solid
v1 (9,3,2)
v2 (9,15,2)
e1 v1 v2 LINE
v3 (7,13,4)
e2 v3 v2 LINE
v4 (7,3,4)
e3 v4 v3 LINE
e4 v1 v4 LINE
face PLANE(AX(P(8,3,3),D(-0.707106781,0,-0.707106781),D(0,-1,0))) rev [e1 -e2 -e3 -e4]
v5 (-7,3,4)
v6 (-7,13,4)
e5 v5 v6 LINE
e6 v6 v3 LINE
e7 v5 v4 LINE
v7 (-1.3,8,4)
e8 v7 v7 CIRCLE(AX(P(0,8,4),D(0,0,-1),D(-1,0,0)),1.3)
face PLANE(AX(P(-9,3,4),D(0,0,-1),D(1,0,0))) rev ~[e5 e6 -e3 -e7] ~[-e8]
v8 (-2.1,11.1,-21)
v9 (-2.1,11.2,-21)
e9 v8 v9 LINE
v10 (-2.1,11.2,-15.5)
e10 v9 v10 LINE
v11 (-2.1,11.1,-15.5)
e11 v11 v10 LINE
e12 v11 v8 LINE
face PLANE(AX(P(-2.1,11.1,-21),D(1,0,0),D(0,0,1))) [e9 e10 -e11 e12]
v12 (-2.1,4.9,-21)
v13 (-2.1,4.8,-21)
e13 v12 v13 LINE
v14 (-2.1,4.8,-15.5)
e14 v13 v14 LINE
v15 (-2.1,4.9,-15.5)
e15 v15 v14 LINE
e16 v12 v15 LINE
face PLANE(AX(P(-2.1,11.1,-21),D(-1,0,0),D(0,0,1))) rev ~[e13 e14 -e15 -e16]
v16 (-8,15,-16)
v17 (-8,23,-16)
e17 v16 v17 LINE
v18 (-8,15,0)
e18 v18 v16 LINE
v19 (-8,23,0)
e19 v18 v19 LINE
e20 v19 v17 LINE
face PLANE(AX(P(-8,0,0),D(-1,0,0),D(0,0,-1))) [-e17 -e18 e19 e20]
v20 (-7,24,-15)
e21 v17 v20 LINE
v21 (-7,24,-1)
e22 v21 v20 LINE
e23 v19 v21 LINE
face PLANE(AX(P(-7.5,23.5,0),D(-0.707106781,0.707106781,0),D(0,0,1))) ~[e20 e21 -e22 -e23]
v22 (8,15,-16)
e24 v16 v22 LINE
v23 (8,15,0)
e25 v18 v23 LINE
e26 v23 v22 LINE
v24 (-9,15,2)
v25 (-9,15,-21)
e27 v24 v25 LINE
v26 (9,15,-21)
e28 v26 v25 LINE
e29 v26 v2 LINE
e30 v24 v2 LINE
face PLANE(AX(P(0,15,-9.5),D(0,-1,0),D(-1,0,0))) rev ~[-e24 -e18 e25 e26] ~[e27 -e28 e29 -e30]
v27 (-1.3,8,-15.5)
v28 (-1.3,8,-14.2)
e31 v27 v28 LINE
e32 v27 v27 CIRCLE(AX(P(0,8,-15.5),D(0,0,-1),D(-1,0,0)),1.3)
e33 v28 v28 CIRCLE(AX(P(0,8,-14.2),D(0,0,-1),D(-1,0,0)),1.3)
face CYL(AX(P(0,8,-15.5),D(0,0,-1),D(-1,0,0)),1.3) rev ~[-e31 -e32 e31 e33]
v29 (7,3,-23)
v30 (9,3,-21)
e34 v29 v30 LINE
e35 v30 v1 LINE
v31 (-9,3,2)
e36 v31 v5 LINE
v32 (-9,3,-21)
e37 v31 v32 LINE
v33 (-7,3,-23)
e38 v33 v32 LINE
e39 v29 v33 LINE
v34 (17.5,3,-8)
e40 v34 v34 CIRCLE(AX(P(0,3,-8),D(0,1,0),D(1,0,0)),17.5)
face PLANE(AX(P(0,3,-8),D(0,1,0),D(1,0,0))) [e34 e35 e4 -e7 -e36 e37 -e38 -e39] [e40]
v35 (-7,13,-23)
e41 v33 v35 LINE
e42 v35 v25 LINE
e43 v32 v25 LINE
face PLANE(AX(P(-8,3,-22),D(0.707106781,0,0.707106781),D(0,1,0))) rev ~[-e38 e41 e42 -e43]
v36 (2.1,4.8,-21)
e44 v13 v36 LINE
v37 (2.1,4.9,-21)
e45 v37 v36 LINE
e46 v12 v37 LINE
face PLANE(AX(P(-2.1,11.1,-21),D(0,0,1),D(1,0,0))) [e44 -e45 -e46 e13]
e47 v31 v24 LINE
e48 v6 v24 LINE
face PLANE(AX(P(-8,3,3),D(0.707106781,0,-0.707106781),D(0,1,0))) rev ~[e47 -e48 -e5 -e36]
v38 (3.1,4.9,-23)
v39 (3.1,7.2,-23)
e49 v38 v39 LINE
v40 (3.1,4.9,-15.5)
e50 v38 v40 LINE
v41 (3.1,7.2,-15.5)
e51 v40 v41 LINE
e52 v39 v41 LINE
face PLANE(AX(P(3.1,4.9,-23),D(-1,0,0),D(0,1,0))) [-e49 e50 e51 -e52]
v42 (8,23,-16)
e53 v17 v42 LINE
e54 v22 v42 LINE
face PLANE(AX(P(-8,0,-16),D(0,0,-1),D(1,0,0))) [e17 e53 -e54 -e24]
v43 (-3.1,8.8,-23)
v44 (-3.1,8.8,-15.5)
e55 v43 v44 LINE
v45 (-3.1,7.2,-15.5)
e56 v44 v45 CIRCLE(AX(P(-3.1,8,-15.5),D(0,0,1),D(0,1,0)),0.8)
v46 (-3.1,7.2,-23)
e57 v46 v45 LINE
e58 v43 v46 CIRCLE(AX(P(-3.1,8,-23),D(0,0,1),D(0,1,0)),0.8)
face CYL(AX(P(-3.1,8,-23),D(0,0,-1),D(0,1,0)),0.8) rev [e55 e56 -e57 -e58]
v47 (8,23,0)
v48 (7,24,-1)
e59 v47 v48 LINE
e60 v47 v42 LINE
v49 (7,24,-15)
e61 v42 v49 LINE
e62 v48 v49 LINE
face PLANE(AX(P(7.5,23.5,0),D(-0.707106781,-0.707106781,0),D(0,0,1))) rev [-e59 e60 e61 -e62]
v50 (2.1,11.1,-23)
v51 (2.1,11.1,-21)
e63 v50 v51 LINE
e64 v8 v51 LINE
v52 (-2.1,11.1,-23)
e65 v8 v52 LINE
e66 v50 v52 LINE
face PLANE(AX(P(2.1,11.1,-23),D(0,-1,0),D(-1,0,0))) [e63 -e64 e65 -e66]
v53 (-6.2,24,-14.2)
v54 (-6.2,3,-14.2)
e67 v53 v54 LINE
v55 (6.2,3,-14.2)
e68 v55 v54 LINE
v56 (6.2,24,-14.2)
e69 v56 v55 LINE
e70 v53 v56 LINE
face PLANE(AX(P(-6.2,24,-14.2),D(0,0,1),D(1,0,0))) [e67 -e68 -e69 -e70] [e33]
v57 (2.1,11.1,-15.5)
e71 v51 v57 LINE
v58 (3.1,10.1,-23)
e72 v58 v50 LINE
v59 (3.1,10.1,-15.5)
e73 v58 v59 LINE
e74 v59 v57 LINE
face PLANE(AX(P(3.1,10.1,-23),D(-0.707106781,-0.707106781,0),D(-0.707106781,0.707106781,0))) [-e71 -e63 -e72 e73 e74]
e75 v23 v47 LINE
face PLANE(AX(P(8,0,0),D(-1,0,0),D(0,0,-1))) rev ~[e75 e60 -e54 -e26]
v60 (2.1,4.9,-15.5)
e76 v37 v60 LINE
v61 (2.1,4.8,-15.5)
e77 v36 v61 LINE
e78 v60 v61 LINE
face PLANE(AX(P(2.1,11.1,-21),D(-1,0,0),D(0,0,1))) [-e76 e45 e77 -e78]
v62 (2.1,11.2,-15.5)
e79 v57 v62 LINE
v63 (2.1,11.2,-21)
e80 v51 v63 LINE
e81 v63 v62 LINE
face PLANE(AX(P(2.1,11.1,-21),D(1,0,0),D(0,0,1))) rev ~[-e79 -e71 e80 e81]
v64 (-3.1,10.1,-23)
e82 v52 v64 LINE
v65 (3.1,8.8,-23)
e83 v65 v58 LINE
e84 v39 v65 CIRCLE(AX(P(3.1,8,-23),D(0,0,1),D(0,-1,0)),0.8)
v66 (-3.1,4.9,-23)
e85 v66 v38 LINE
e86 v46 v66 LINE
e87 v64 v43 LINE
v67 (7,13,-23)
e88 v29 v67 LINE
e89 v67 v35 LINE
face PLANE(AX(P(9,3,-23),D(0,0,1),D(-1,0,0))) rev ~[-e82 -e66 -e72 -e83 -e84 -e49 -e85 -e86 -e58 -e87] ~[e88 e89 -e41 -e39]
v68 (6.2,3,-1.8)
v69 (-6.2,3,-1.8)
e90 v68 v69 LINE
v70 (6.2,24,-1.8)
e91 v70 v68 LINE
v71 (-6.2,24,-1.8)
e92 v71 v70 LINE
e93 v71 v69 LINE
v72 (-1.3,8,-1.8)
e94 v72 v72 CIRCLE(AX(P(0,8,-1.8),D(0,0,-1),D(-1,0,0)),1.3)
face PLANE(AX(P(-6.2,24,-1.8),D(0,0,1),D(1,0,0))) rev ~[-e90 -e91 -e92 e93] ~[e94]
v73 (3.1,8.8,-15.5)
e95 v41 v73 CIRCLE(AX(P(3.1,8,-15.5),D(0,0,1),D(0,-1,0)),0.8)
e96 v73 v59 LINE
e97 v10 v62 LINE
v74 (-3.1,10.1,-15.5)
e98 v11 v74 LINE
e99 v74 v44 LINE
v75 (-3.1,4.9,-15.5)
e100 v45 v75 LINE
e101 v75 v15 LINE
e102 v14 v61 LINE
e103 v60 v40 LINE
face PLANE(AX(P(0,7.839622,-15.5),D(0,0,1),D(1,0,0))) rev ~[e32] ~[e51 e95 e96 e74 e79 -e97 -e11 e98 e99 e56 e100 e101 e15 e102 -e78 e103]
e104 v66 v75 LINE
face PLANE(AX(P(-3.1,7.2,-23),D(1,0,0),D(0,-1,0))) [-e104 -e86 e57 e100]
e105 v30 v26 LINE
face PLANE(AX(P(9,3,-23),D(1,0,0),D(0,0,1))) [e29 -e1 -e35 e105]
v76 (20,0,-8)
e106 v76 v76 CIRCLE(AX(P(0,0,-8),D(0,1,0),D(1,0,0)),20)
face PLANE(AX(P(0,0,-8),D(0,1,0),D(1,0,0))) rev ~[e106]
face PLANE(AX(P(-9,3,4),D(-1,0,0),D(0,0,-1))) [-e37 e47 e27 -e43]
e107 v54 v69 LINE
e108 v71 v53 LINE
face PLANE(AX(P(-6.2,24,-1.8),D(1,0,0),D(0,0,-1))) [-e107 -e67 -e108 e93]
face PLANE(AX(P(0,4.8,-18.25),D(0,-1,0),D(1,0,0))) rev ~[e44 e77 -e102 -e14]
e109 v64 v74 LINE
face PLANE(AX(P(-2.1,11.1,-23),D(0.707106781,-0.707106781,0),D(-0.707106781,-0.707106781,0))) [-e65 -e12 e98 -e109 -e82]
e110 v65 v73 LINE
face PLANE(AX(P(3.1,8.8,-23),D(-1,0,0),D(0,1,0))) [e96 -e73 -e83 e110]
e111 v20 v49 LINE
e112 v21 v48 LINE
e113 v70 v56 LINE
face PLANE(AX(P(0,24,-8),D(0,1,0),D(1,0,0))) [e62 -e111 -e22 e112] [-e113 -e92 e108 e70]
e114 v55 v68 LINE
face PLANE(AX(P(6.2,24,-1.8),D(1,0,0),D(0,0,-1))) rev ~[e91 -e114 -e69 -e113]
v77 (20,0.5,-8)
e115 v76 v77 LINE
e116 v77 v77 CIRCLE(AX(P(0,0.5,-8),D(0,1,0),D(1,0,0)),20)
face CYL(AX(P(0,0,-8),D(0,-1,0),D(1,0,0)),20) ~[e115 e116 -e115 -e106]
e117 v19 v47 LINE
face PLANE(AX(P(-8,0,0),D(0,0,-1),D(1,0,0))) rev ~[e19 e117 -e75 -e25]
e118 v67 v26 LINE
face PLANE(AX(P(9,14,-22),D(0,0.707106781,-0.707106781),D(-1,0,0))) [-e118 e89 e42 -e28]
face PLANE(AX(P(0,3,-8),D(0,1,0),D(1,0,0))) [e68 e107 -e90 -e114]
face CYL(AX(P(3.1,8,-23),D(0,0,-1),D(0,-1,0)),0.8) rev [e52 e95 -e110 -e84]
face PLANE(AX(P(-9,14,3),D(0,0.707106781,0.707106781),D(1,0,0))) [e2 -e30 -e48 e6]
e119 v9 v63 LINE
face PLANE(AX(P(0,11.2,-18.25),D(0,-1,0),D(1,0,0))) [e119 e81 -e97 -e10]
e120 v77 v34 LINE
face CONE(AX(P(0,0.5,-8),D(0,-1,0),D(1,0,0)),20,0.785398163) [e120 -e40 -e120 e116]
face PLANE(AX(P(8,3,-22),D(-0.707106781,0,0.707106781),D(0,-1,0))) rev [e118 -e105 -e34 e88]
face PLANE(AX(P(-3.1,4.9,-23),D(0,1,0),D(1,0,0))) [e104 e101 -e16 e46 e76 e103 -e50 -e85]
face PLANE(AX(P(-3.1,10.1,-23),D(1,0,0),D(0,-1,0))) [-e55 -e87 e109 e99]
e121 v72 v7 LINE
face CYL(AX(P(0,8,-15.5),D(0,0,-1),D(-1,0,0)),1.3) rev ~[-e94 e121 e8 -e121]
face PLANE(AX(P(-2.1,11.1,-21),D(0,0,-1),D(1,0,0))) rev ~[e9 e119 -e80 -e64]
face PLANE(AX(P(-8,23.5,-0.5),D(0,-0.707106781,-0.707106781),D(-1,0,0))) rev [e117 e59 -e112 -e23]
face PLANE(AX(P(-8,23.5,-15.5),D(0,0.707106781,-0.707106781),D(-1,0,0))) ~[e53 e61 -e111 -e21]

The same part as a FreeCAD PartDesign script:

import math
import FreeCAD as App
import Part
import Sketcher


def edges_at(feature, points):
    """Names of the edges that pass closest to the given points."""
    edges = feature.Shape.Edges
    near = lambda p: min(range(len(edges)), key=lambda i: edges[i].distToShape(Part.Vertex(*p))[0])
    return sorted({f"Edge{near(p) + 1}" for p in points})


def add_polygon(sketch, points):
    """Adds a closed chain of lines whose ends are joined by coincident constraints."""
    first, n = sketch.GeometryCount, len(points)
    for a, b in zip(points, points[1:] + points[:1]):
        sketch.addGeometry(Part.LineSegment(App.Vector(*a, 0), App.Vector(*b, 0)), False)
    for i in range(n):
        sketch.addConstraint(Sketcher.Constraint("Coincident", first + i, 2, first + (i + 1) % n, 1))

doc = App.newDocument("Part")
body = doc.addObject("PartDesign::Body", "Body")

# Sketch on XZ plane
sketch1 = body.newObject("Sketcher::SketchObject", "Sketch")
sketch1.AttachmentSupport = (doc.getObject("XZ_Plane"), [""])
sketch1.MapMode = "FlatFace"
add_polygon(sketch1, [(-8, -16), (-8, 0), (8, 0), (8, -16)])  # lines 0-3
sketch1.addConstraint(Sketcher.Constraint("Vertical", 0))
sketch1.addConstraint(Sketcher.Constraint("Horizontal", 1))
sketch1.addConstraint(Sketcher.Constraint("Vertical", 2))
sketch1.addConstraint(Sketcher.Constraint("Horizontal", 3))
sketch1.addConstraint(Sketcher.Constraint("Symmetric", 0, 2, 1, 2, -1, 1))
sketch1.addConstraint(Sketcher.Constraint("Equal", 3, 0))
sketch1.addConstraint(Sketcher.Constraint("DistanceX", 1, 1, 1, 2, 16.0))
pad1 = body.newObject("PartDesign::Pad", "Pad")
pad1.Profile = sketch1
pad1.Length = 24
pad1.Reversed = True

# Sketch on XZ plane
sketch2 = body.newObject("Sketcher::SketchObject", "Sketch001")
sketch2.AttachmentSupport = (doc.getObject("XZ_Plane"), [""])
sketch2.MapMode = "FlatFace"
sketch2.AttachmentOffset = App.Placement(App.Vector(0, 0, -24), App.Rotation())
add_polygon(sketch2, [(-6, -14), (-6, -2), (6, -2), (6, -14)])  # lines 0-3
sketch2.addConstraint(Sketcher.Constraint("Vertical", 0))
sketch2.addConstraint(Sketcher.Constraint("Horizontal", 1))
sketch2.addConstraint(Sketcher.Constraint("Vertical", 2))
sketch2.addConstraint(Sketcher.Constraint("Horizontal", 3))
sketch2.addConstraint(Sketcher.Constraint("Equal", 3, 0))
sketch2.addConstraint(Sketcher.Constraint("DistanceX", 1, 1, 1, 2, 12.4))
sketch2.addConstraint(Sketcher.Constraint("DistanceX", 0, 2, -1, 1, 6.2))
sketch2.addConstraint(Sketcher.Constraint("DistanceY", 0, 2, -1, 1, 1.8))
pocket1 = body.newObject("PartDesign::Pocket", "Pocket")
pocket1.Profile = sketch2
pocket1.Length = 22
pocket1.Reversed = True

# Sketch on XZ plane
sketch3 = body.newObject("Sketcher::SketchObject", "Sketch002")
sketch3.AttachmentSupport = (doc.getObject("XZ_Plane"), [""])
sketch3.MapMode = "FlatFace"
sketch3.addGeometry(Part.Circle(App.Vector(0, -8, 0), App.Vector(0, 0, 1), 20), False)
sketch3.addConstraint(Sketcher.Constraint("PointOnObject", 0, 3, -2))
sketch3.addConstraint(Sketcher.Constraint("Diameter", 0, 40.0))
sketch3.addConstraint(Sketcher.Constraint("DistanceY", 0, 3, -1, 1, 8.0))
pad2 = body.newObject("PartDesign::Pad", "Pad001")
pad2.Profile = sketch3
pad2.Length = 3
pad2.Reversed = True
doc.recompute()

chamfer = body.newObject("PartDesign::Chamfer", "Chamfer")
chamfer.Base = (pad2, edges_at(pad2, [(-20, 3, -8)]))
chamfer.Size = 2.5

# Sketch on XZ plane
sketch4 = body.newObject("Sketcher::SketchObject", "Sketch003")
sketch4.AttachmentSupport = (doc.getObject("XZ_Plane"), [""])
sketch4.MapMode = "FlatFace"
sketch4.AttachmentOffset = App.Placement(App.Vector(0, 0, -3), App.Rotation())
add_polygon(sketch4, [(9, -23), (-9, -23), (-9, 4), (9, 4)])  # lines 0-3
add_polygon(sketch4, [(-8, 0), (-8, -16), (8, -16), (8, 0)])  # lines 4-7
sketch4.addConstraint(Sketcher.Constraint("Horizontal", 0))
sketch4.addConstraint(Sketcher.Constraint("Vertical", 1))
sketch4.addConstraint(Sketcher.Constraint("Horizontal", 2))
sketch4.addConstraint(Sketcher.Constraint("Vertical", 3))
sketch4.addConstraint(Sketcher.Constraint("Vertical", 4))
sketch4.addConstraint(Sketcher.Constraint("Horizontal", 5))
sketch4.addConstraint(Sketcher.Constraint("Vertical", 6))
sketch4.addConstraint(Sketcher.Constraint("Horizontal", 7))
sketch4.addConstraint(Sketcher.Constraint("Symmetric", 6, 2, 7, 2, -1, 1))
sketch4.addConstraint(Sketcher.Constraint("Equal", 7, 4))
sketch4.addConstraint(Sketcher.Constraint("DistanceX", 0, 2, 0, 1, 18.0))
sketch4.addConstraint(Sketcher.Constraint("DistanceX", 5, 1, 5, 2, 16.0))
sketch4.addConstraint(Sketcher.Constraint("DistanceY", 1, 1, 1, 2, 27.0))
sketch4.addConstraint(Sketcher.Constraint("DistanceX", 0, 2, -1, 1, 9.0))
sketch4.addConstraint(Sketcher.Constraint("DistanceY", 0, 2, -1, 1, 23.0))
pad3 = body.newObject("PartDesign::Pad", "Pad002")
pad3.Profile = sketch4
pad3.Length = 12
pad3.Reversed = True

# Sketch on XY plane
sketch5 = body.newObject("Sketcher::SketchObject", "Sketch004")
sketch5.AttachmentSupport = (doc.getObject("XY_Plane"), [""])
sketch5.MapMode = "FlatFace"
sketch5.AttachmentOffset = App.Placement(App.Vector(0, 0, -23), App.Rotation())
sketch5.addGeometry(Part.LineSegment(App.Vector(-2.1, 11.1, 0), App.Vector(2.1, 11.1, 0)), False)
sketch5.addGeometry(Part.LineSegment(App.Vector(2.1, 11.1, 0), App.Vector(3.1, 10.1, 0)), False)
sketch5.addGeometry(Part.LineSegment(App.Vector(3.1, 10.1, 0), App.Vector(3.1, 8.8, 0)), False)
sketch5.addGeometry(Part.ArcOfCircle(Part.Circle(App.Vector(3.1, 8, 0), App.Vector(0, 0, 1), 0.8), math.radians(-90), math.radians(90)), False)
sketch5.addGeometry(Part.LineSegment(App.Vector(3.1, 7.2, 0), App.Vector(3.1, 4.9, 0)), False)
sketch5.addGeometry(Part.LineSegment(App.Vector(3.1, 4.9, 0), App.Vector(-3.1, 4.9, 0)), False)
sketch5.addGeometry(Part.LineSegment(App.Vector(-3.1, 4.9, 0), App.Vector(-3.1, 7.2, 0)), False)
sketch5.addGeometry(Part.ArcOfCircle(Part.Circle(App.Vector(-3.1, 8, 0), App.Vector(0, 0, 1), 0.8), math.radians(90), math.radians(270)), False)
sketch5.addGeometry(Part.LineSegment(App.Vector(-3.1, 8.8, 0), App.Vector(-3.1, 10.1, 0)), False)
sketch5.addGeometry(Part.LineSegment(App.Vector(-3.1, 10.1, 0), App.Vector(-2.1, 11.1, 0)), False)
sketch5.addConstraint(Sketcher.Constraint("Coincident", 0, 2, 1, 1))
sketch5.addConstraint(Sketcher.Constraint("Coincident", 1, 2, 2, 1))
sketch5.addConstraint(Sketcher.Constraint("Coincident", 2, 2, 3, 2))
sketch5.addConstraint(Sketcher.Constraint("Coincident", 3, 1, 4, 1))
sketch5.addConstraint(Sketcher.Constraint("Coincident", 4, 2, 5, 1))
sketch5.addConstraint(Sketcher.Constraint("Coincident", 5, 2, 6, 1))
sketch5.addConstraint(Sketcher.Constraint("Coincident", 6, 2, 7, 2))
sketch5.addConstraint(Sketcher.Constraint("Coincident", 7, 1, 8, 1))
sketch5.addConstraint(Sketcher.Constraint("Coincident", 8, 2, 9, 1))
sketch5.addConstraint(Sketcher.Constraint("Coincident", 9, 2, 0, 1))
sketch5.addConstraint(Sketcher.Constraint("Horizontal", 0))
sketch5.addConstraint(Sketcher.Constraint("Vertical", 2))
sketch5.addConstraint(Sketcher.Constraint("Vertical", 4))
sketch5.addConstraint(Sketcher.Constraint("Horizontal", 5))
sketch5.addConstraint(Sketcher.Constraint("Vertical", 6))
sketch5.addConstraint(Sketcher.Constraint("Vertical", 8))
sketch5.addConstraint(Sketcher.Constraint("Equal", 3, 7))
sketch5.addConstraint(Sketcher.Constraint("Symmetric", 3, 3, 7, 3, -2))
sketch5.addConstraint(Sketcher.Constraint("Symmetric", 1, 2, 8, 2, -2))
sketch5.addConstraint(Sketcher.Constraint("Perpendicular", 1, 9))
sketch5.addConstraint(Sketcher.Constraint("Vertical", 3, 3, 1, 2))
sketch5.addConstraint(Sketcher.Constraint("Vertical", 2, 2, 3, 1))
sketch5.addConstraint(Sketcher.Constraint("Vertical", 7, 3, 5, 2))
sketch5.addConstraint(Sketcher.Constraint("Equal", 1, 9))
sketch5.addConstraint(Sketcher.Constraint("Radius", 3, 0.8))
sketch5.addConstraint(Sketcher.Constraint("DistanceX", 0, 1, 0, 2, 4.2))
sketch5.addConstraint(Sketcher.Constraint("DistanceX", 5, 2, 5, 1, 6.2))
sketch5.addConstraint(Sketcher.Constraint("DistanceY", 2, 2, 2, 1, 1.3))
sketch5.addConstraint(Sketcher.Constraint("DistanceY", 4, 2, 4, 1, 2.3))
sketch5.addConstraint(Sketcher.Constraint("DistanceY", -1, 1, 3, 3, 8.0))
pocket2 = body.newObject("PartDesign::Pocket", "Pocket001")
pocket2.Profile = sketch5
pocket2.Length = 7.5
pocket2.Reversed = True

# Sketch on XZ plane
sketch6 = body.newObject("Sketcher::SketchObject", "Sketch005")
sketch6.AttachmentSupport = (doc.getObject("XZ_Plane"), [""])
sketch6.MapMode = "FlatFace"
sketch6.AttachmentOffset = App.Placement(App.Vector(0, 0, -11.1), App.Rotation())
add_polygon(sketch6, [(-2.1, -15.5), (-2.1, -21), (2.1, -21), (2.1, -15.5)])  # lines 0-3
sketch6.addConstraint(Sketcher.Constraint("Vertical", 0))
sketch6.addConstraint(Sketcher.Constraint("Horizontal", 1))
sketch6.addConstraint(Sketcher.Constraint("Vertical", 2))
sketch6.addConstraint(Sketcher.Constraint("Horizontal", 3))
sketch6.addConstraint(Sketcher.Constraint("DistanceX", 1, 1, 1, 2, 4.2))
sketch6.addConstraint(Sketcher.Constraint("DistanceY", 0, 2, 0, 1, 5.5))
sketch6.addConstraint(Sketcher.Constraint("DistanceY", 0, 2, -1, 1, 21.0))
sketch6.addConstraint(Sketcher.Constraint("DistanceX", 0, 2, -1, 1, 2.1))
pocket3 = body.newObject("PartDesign::Pocket", "Pocket002")
pocket3.Profile = sketch6
pocket3.Type = "TwoLengths"
pocket3.Length = 6.3
pocket3.Length2 = 0.1
pocket3.Reversed = True
doc.recompute()

chamfer2 = body.newObject("PartDesign::Chamfer", "Chamfer001")
chamfer2.Base = (pocket3, edges_at(pocket3, [(0, 15, -23), (9, 9, -23), (-9, 9, -23)]))
chamfer2.Size = 2
doc.recompute()

chamfer3 = body.newObject("PartDesign::Chamfer", "Chamfer002")
chamfer3.Base = (chamfer2, edges_at(chamfer2, [(0, 15, 4), (-9, 9, 4), (9, 9, 4)]))
chamfer3.Size = 2

# Sketch on XY plane
sketch7 = body.newObject("Sketcher::SketchObject", "Sketch006")
sketch7.AttachmentSupport = (doc.getObject("XY_Plane"), [""])
sketch7.MapMode = "FlatFace"
sketch7.AttachmentOffset = App.Placement(App.Vector(0, 0, -15.5), App.Rotation())
sketch7.addGeometry(Part.Circle(App.Vector(0, 8, 0), App.Vector(0, 0, 1), 1.3), False)
sketch7.addConstraint(Sketcher.Constraint("PointOnObject", 0, 3, -2))
sketch7.addConstraint(Sketcher.Constraint("Diameter", 0, 2.6))
sketch7.addConstraint(Sketcher.Constraint("DistanceY", -1, 1, 0, 3, 8.0))
pocket4 = body.newObject("PartDesign::Pocket", "Pocket003")
pocket4.Profile = sketch7
pocket4.Type = "ThroughAll"
pocket4.Reversed = True
doc.recompute()

chamfer4 = body.newObject("PartDesign::Chamfer", "Chamfer003")
chamfer4.Base = (pocket4, edges_at(pocket4, [
    (0, 24, -16),
    (-8, 24, -8),
    (0, 24, 0),
    (8, 24, -8),
]))
chamfer4.Size = 1

doc.recompute()
